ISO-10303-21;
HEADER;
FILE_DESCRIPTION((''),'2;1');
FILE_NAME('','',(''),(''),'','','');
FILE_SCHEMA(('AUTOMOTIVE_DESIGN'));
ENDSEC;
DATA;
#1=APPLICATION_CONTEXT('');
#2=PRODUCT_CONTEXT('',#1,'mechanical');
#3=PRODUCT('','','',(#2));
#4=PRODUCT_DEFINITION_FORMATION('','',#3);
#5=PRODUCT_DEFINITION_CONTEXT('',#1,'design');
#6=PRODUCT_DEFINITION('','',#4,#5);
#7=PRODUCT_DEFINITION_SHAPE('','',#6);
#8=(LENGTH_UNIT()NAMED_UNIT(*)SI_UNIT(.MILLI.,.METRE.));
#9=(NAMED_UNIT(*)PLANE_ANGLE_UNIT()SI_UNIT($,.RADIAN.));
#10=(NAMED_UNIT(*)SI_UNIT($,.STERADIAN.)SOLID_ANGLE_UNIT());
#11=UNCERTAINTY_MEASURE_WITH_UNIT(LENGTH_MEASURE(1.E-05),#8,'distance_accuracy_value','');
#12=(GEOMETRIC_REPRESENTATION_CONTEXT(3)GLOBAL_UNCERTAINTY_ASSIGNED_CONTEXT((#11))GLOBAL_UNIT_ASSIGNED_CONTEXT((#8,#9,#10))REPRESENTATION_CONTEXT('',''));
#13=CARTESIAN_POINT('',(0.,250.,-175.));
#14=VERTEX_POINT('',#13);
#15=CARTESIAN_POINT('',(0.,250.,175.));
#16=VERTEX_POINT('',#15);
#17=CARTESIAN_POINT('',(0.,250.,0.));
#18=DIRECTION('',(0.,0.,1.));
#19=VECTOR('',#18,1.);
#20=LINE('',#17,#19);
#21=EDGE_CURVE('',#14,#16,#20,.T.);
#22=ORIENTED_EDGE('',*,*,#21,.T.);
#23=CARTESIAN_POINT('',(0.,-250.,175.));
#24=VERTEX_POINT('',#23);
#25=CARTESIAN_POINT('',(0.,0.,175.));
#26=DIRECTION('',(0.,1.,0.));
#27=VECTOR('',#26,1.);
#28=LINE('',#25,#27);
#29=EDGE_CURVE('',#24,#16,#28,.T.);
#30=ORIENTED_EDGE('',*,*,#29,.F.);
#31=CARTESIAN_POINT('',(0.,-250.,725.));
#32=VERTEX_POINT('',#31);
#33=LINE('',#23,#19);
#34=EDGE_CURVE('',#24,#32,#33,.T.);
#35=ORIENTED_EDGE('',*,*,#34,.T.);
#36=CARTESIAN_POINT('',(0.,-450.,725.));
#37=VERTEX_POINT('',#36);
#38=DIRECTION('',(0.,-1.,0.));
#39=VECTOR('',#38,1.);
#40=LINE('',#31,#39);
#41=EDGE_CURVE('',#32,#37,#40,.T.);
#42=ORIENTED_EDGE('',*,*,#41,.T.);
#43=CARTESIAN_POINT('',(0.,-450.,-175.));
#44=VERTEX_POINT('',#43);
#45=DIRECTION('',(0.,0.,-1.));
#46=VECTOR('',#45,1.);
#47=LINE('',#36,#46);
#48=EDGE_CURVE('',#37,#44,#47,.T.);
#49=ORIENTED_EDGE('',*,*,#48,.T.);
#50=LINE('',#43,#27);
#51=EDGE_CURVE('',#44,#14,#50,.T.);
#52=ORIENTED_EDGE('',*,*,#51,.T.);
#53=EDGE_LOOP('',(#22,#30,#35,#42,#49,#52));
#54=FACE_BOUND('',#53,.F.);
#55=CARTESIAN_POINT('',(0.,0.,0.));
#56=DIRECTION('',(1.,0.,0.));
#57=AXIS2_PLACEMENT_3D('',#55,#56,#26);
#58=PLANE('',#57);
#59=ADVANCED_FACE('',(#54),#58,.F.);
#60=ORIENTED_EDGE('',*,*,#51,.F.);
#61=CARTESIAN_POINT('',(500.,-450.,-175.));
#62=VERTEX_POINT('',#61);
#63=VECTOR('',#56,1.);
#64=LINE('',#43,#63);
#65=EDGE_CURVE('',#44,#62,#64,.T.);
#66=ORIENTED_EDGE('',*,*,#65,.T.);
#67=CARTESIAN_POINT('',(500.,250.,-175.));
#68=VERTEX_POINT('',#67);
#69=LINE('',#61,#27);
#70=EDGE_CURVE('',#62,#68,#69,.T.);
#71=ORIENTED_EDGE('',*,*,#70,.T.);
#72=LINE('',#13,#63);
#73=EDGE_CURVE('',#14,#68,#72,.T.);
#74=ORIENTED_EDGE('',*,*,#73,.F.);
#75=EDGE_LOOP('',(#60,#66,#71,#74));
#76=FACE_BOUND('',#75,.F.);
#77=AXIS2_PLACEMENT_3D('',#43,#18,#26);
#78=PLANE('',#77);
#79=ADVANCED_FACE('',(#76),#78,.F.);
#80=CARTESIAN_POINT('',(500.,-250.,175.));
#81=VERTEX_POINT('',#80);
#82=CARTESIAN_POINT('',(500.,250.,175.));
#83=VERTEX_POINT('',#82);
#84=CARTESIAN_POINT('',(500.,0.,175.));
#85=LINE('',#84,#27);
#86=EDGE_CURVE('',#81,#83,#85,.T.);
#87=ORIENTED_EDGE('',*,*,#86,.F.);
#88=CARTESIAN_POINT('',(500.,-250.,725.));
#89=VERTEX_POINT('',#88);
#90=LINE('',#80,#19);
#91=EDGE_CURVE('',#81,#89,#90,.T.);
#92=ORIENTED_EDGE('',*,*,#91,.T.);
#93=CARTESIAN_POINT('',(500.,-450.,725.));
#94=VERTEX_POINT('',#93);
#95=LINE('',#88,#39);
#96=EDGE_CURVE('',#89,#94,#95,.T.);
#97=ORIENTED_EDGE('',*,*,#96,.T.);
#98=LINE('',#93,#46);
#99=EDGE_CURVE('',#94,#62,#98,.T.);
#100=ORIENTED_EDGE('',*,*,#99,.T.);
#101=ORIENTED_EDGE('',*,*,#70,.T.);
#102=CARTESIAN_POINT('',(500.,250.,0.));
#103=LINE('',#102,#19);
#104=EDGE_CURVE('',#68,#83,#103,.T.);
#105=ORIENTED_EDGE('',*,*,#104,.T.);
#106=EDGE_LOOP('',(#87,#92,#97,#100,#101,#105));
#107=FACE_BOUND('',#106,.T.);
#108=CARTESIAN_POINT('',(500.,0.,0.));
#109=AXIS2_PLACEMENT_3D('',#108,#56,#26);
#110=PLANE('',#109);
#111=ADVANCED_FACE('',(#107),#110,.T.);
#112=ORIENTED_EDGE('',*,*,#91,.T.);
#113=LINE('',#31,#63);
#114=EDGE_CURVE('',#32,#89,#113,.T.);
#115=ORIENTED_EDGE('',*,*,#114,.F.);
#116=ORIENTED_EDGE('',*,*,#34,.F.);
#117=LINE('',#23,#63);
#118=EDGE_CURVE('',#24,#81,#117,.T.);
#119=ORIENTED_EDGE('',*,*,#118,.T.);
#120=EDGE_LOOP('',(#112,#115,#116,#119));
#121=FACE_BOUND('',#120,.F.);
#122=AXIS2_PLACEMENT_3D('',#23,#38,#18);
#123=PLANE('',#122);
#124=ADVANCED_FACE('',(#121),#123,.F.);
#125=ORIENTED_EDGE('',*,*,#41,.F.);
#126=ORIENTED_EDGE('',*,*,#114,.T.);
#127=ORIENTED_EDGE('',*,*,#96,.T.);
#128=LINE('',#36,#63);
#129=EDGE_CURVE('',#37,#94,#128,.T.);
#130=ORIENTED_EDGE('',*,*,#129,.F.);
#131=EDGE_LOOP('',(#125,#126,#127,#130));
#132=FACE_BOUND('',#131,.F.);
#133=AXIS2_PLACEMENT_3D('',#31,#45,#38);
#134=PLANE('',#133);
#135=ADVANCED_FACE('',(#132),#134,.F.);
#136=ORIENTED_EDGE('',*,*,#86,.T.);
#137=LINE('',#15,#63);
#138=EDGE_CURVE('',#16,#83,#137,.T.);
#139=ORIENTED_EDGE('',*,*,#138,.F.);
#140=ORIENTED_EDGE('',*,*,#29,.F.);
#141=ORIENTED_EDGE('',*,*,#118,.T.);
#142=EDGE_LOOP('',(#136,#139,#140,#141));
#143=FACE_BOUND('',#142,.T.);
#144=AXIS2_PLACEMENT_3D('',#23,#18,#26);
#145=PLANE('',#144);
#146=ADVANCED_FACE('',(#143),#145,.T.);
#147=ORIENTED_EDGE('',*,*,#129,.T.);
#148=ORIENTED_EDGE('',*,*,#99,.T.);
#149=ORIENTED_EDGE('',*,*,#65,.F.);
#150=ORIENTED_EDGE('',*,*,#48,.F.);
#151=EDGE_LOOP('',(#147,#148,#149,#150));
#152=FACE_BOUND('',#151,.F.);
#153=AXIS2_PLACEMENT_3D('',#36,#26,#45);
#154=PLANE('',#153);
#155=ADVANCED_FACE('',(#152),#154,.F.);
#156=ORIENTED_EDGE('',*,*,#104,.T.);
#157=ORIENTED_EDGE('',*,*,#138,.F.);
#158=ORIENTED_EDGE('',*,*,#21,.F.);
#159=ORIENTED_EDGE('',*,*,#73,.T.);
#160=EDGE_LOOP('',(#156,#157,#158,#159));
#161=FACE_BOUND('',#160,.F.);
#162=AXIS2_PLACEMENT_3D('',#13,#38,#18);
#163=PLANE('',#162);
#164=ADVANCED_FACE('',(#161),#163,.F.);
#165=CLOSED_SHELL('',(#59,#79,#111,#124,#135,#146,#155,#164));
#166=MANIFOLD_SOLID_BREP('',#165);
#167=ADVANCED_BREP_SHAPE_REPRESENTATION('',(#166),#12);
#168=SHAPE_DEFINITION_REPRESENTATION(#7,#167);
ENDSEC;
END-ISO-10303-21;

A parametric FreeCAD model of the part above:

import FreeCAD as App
import Part
import Sketcher

V = App.Vector
Q = App.Units.Quantity

doc = App.newDocument("Part")
body = doc.addObject("PartDesign::Body", "Body")

sketch1 = body.newObject("Sketcher::SketchObject", "Sketch")
sketch1.AttachmentSupport = (doc.getObject("YZ_Plane"), [""])
sketch1.MapMode = "FlatFace"
sketch1.addGeometry([
    Part.LineSegment(V(250, -175, 0), V(250, 175, 0)),
    Part.LineSegment(V(250, 175, 0), V(-250, 175, 0)),
    Part.LineSegment(V(-250, 175, 0), V(-250, 725, 0)),
    Part.LineSegment(V(-250, 725, 0), V(-450, 725, 0)),
    Part.LineSegment(V(-450, 725, 0), V(-450, -175, 0)),
    Part.LineSegment(V(-450, -175, 0), V(250, -175, 0)),
], False)
sketch1.addConstraint([
    Sketcher.Constraint("Coincident", 0, 2, 1, 1),
    Sketcher.Constraint("Coincident", 1, 2, 2, 1),
    Sketcher.Constraint("Coincident", 2, 2, 3, 1),
    Sketcher.Constraint("Coincident", 3, 2, 4, 1),
    Sketcher.Constraint("Coincident", 4, 2, 5, 1),
    Sketcher.Constraint("Coincident", 5, 2, 0, 1),
    Sketcher.Constraint("Vertical", 0),
    Sketcher.Constraint("Horizontal", 1),
    Sketcher.Constraint("Vertical", 2),
    Sketcher.Constraint("Horizontal", 3),
    Sketcher.Constraint("Vertical", 4),
    Sketcher.Constraint("Horizontal", 5),
    Sketcher.Constraint("Symmetric", 1, 2, 5, 2, -1, 1),
    Sketcher.Constraint("DistanceX", 1, 2, 1, 1, Q("500 mm")),
    Sketcher.Constraint("DistanceX", 3, 2, 3, 1, Q("200 mm")),
    Sketcher.Constraint("DistanceY", 0, 1, 0, 2, Q("350 mm")),
    Sketcher.Constraint("DistanceY", 2, 1, 2, 2, Q("550 mm")),
])
pad1 = body.newObject("PartDesign::Pad", "Pad")
pad1.Profile = sketch1
pad1.Length = 500

doc.recompute()
